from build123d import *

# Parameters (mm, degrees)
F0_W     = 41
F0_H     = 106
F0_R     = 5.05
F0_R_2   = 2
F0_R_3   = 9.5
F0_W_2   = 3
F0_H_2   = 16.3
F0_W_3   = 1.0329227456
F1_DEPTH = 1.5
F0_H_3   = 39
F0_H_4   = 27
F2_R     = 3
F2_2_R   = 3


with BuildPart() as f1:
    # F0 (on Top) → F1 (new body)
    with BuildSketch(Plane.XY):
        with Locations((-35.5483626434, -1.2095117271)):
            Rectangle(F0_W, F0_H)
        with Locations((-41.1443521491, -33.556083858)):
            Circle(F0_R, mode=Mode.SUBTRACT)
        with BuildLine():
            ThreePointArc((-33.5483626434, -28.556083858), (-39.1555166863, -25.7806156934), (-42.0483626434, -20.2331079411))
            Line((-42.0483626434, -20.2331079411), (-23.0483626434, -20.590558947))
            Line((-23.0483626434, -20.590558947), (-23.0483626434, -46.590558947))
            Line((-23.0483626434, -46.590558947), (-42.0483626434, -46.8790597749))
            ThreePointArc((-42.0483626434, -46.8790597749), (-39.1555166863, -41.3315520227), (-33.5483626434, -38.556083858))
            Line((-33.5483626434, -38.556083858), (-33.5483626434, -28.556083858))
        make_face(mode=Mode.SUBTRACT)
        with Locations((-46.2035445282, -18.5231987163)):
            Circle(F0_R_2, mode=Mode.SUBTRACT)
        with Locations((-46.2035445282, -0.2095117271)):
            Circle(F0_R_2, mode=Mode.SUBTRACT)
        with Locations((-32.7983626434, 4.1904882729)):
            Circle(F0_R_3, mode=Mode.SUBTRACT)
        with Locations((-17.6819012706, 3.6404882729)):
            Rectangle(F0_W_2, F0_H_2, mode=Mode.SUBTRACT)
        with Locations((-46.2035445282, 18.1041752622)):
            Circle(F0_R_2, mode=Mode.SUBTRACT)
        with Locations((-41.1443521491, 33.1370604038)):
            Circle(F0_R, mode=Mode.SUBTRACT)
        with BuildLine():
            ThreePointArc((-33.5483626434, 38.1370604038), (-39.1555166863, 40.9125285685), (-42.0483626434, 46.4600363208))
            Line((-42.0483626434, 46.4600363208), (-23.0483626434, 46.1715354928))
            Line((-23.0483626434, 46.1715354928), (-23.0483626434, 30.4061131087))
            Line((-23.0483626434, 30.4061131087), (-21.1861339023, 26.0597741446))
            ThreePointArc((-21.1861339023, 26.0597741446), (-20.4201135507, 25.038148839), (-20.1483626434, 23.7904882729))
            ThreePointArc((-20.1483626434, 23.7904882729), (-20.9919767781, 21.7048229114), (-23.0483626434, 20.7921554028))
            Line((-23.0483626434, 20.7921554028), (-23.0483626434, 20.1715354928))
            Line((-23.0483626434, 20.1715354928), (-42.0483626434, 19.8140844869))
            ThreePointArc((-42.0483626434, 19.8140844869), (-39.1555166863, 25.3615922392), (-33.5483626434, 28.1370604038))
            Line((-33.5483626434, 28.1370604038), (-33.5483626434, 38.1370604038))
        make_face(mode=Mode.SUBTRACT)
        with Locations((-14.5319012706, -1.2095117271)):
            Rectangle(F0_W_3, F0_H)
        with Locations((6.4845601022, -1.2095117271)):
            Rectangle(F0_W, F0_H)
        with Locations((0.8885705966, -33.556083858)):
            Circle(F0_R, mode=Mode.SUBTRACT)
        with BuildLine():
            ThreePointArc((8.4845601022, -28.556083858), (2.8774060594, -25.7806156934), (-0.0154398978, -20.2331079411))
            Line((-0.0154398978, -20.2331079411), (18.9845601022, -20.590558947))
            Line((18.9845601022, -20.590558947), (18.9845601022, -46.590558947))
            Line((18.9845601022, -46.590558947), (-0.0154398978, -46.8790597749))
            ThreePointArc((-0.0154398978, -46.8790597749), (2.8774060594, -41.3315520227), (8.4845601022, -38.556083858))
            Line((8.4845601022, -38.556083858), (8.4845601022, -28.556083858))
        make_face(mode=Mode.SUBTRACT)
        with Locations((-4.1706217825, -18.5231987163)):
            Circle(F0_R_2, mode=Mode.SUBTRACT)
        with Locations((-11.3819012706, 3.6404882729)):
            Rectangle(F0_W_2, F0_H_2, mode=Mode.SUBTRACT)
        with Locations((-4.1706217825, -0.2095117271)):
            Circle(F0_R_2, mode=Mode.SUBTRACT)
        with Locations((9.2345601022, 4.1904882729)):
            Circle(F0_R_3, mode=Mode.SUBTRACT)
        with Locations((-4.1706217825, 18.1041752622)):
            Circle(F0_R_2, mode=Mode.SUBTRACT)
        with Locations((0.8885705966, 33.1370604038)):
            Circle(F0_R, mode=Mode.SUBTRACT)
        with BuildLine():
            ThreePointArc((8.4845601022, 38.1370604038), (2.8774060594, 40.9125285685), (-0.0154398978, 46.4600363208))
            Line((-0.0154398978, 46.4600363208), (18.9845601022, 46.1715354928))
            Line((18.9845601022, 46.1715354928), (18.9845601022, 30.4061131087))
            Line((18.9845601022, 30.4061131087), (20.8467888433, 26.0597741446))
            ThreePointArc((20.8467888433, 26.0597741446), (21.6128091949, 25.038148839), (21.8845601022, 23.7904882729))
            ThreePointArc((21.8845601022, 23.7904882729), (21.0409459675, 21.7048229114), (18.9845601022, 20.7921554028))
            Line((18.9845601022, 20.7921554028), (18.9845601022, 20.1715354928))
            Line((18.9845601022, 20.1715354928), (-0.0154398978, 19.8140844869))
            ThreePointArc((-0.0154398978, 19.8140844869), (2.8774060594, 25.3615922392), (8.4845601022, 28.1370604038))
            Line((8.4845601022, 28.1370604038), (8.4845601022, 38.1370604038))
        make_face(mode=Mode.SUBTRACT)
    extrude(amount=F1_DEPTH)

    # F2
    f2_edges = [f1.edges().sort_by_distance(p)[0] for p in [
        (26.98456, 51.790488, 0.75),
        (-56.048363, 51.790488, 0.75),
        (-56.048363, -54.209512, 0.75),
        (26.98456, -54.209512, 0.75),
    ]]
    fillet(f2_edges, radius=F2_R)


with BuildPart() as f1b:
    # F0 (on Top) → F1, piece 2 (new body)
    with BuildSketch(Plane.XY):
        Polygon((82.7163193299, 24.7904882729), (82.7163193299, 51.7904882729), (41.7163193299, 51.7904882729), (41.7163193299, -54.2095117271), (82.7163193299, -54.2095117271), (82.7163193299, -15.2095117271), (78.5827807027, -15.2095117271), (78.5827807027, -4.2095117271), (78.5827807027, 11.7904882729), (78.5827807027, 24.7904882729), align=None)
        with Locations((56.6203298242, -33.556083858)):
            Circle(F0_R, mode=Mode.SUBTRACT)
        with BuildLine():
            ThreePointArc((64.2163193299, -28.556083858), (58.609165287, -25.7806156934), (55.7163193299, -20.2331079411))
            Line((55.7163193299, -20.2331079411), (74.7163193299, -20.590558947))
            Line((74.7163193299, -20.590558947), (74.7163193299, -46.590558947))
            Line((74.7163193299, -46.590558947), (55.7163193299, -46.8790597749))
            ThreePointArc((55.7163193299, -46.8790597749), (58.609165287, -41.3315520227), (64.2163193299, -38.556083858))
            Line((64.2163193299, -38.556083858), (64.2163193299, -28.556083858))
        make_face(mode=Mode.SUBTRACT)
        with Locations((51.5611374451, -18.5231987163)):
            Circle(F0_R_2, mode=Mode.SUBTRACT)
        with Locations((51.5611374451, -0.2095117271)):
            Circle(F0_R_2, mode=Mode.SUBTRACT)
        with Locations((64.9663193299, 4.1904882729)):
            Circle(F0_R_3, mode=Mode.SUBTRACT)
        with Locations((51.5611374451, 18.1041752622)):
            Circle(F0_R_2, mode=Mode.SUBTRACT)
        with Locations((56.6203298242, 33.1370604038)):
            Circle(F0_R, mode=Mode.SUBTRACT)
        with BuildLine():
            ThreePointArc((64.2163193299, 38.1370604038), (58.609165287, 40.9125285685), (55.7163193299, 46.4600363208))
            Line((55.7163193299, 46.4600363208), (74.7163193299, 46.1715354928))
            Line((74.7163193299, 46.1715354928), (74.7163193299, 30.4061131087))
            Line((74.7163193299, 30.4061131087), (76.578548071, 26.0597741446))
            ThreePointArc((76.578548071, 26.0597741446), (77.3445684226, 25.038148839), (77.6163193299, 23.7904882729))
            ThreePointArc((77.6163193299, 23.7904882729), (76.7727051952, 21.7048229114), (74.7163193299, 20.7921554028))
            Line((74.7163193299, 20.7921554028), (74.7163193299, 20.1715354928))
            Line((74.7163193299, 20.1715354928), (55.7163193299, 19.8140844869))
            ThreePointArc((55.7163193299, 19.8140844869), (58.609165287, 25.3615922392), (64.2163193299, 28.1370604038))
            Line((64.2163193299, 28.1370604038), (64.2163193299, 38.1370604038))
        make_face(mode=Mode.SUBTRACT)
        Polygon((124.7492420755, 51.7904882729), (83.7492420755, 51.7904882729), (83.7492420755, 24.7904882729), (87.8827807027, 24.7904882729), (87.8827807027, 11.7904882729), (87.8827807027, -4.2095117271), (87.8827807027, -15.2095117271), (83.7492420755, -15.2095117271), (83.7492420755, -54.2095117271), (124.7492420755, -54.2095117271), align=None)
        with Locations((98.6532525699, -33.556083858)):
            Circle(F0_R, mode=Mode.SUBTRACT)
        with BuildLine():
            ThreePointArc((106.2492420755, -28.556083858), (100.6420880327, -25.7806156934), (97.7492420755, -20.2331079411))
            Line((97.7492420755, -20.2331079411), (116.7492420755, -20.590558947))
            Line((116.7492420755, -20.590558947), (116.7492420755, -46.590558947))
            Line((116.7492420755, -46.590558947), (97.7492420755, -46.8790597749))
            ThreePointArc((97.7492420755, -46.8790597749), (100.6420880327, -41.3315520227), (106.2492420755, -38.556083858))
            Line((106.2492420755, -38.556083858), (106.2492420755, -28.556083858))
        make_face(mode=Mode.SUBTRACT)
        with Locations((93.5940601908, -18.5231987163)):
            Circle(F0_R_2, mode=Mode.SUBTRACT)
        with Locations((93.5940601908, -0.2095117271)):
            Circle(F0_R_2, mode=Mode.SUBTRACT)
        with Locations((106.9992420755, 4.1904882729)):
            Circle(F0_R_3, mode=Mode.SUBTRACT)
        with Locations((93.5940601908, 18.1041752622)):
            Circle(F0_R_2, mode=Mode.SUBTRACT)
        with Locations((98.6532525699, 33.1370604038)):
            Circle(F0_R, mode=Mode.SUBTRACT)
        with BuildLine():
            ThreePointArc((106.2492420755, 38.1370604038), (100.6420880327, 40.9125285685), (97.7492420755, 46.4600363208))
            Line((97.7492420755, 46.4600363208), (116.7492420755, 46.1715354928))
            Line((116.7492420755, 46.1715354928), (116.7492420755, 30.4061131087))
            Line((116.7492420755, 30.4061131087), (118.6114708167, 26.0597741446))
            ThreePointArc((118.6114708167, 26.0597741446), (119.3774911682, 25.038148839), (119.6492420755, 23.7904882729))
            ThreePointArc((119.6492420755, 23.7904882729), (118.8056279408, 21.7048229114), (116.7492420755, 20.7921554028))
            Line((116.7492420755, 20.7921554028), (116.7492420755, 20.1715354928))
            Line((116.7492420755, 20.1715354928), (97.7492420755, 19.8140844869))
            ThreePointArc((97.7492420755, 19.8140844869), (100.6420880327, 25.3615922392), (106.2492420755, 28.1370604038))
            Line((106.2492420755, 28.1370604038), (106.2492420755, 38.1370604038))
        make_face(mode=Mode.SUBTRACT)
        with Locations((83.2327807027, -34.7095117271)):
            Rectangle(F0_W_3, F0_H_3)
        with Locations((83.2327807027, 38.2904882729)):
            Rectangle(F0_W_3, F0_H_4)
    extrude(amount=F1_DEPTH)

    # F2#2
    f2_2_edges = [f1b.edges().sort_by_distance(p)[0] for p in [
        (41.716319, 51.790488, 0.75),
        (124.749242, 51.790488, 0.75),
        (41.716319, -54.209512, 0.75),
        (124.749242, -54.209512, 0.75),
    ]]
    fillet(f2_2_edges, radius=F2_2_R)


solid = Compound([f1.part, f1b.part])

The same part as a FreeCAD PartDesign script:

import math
import FreeCAD as App
import Part
import Sketcher

V = App.Vector
Q = App.Units.Quantity


def edges_at(feature, points):
    """Names of the edges that pass closest to the given points."""
    edges = feature.Shape.Edges
    near = lambda p: min(range(len(edges)), key=lambda i: edges[i].distToShape(Part.Vertex(*p))[0])
    return sorted({f"Edge{near(p) + 1}" for p in points})

doc = App.newDocument("Part")
params = doc.addObject("Spreadsheet::Sheet", "Params")
for row, (alias, value) in enumerate([
    ("sketch1_diameter", "4 mm"),
    ("sketch1_diameter2", "19 mm"),
    ("sketch1_radius", "3 mm"),
    ("sketch1_diameter3", "10.1 mm"),
    ("sketch1_width", "3 mm"),
    ("pad1_length", "1.5 mm"),
    ("fillet_radius", "3 mm"),
    ("sketch2_diameter", "4 mm"),
    ("sketch2_diameter2", "19 mm"),
    ("sketch2_radius", "3 mm"),
    ("sketch2_diameter3", "10.1 mm"),
    ("sketch2_height", "106 mm"),
    ("pad2_length", "1.5 mm"),
    ("fillet2_radius", "3 mm"),
], start=1):
    params.set(f"A{row}", alias)
    params.set(f"B{row}", "=" + value)
    params.setAlias(f"B{row}", alias)

body = doc.addObject("PartDesign::Body", "Body")

sketch1 = body.newObject("Sketcher::SketchObject", "Sketch")
sketch1.AttachmentSupport = (doc.getObject("XY_Plane"), [""])
sketch1.MapMode = "FlatFace"
sketch1.addGeometry(Part.LineSegment(V(-56, 51.8, 0), V(-56, -54.2, 0)), False)
sketch1.addGeometry(Part.LineSegment(V(-56, -54.2, 0), V(27, -54.2, 0)), False)
sketch1.addGeometry(Part.LineSegment(V(27, -54.2, 0), V(27, 51.8, 0)), False)
sketch1.addGeometry(Part.LineSegment(V(27, 51.8, 0), V(-56, 51.8, 0)), False)
sketch1.addGeometry(Part.Circle(V(-41.1, -33.6, 0), V(0, 0, 1), 5), False)
sketch1.addGeometry(Part.LineSegment(V(-33.5, -38.6, 0), V(-33.5, -28.6, 0)), False)
sketch1.addGeometry(Part.ArcOfCircle(Part.Circle(V(-32.1, -18.6, 0), V(0, 0, 1), 10.1), math.radians(-171), math.radians(-98)), False)
sketch1.addGeometry(Part.LineSegment(V(-42, -20.2, 0), V(-23, -20.6, 0)), False)
sketch1.addGeometry(Part.LineSegment(V(-23, -20.6, 0), V(-23, -46.6, 0)), False)
sketch1.addGeometry(Part.LineSegment(V(-23, -46.6, 0), V(-42, -46.9, 0)), False)
sketch1.addGeometry(Part.ArcOfCircle(Part.Circle(V(-32.1, -48.5, 0), V(0, 0, 1), 10.1), math.radians(98), math.radians(171)), False)
sketch1.addGeometry(Part.Circle(V(-46.2, -18.5, 0), V(0, 0, 1), 2), False)
sketch1.addGeometry(Part.Circle(V(-46.2, -0.2, 0), V(0, 0, 1), 2), False)
sketch1.addGeometry(Part.Circle(V(0.9, -33.6, 0), V(0, 0, 1), 5), False)
sketch1.addGeometry(Part.LineSegment(V(8.5, -38.6, 0), V(8.5, -28.6, 0)), False)
sketch1.addGeometry(Part.ArcOfCircle(Part.Circle(V(9.9, -18.6, 0), V(0, 0, 1), 10.1), math.radians(-171), math.radians(-98)), False)
sketch1.addGeometry(Part.LineSegment(V(0, -20.2, 0), V(19, -20.6, 0)), False)
sketch1.addGeometry(Part.LineSegment(V(19, -20.6, 0), V(19, -46.6, 0)), False)
sketch1.addGeometry(Part.LineSegment(V(19, -46.6, 0), V(0, -46.9, 0)), False)
sketch1.addGeometry(Part.ArcOfCircle(Part.Circle(V(9.9, -48.5, 0), V(0, 0, 1), 10.1), math.radians(98), math.radians(171)), False)
sketch1.addGeometry(Part.Circle(V(-4.2, -18.5, 0), V(0, 0, 1), 2), False)
sketch1.addGeometry(Part.Circle(V(-4.2, -0.2, 0), V(0, 0, 1), 2), False)
sketch1.addGeometry(Part.Circle(V(-32.8, 4.2, 0), V(0, 0, 1), 9.5), False)
sketch1.addGeometry(Part.Circle(V(-46.2, 18.1, 0), V(0, 0, 1), 2), False)
sketch1.addGeometry(Part.LineSegment(V(-16.2, -4.5, 0), V(-19.2, -4.5, 0)), False)
sketch1.addGeometry(Part.LineSegment(V(-19.2, -4.5, 0), V(-19.2, 11.8, 0)), False)
sketch1.addGeometry(Part.LineSegment(V(-19.2, 11.8, 0), V(-16.2, 11.8, 0)), False)
sketch1.addGeometry(Part.LineSegment(V(-16.2, 11.8, 0), V(-16.2, -4.5, 0)), False)
sketch1.addGeometry(Part.Circle(V(-41.1, 33.1, 0), V(0, 0, 1), 5), False)
sketch1.addGeometry(Part.LineSegment(V(-33.5, 28.1, 0), V(-33.5, 38.1, 0)), False)
sketch1.addGeometry(Part.ArcOfCircle(Part.Circle(V(-32.1, 48.1, 0), V(0, 0, 1), 10.1), math.radians(-171), math.radians(-98)), False)
sketch1.addGeometry(Part.LineSegment(V(-42, 46.5, 0), V(-23, 46.2, 0)), False)
sketch1.addGeometry(Part.LineSegment(V(-23, 46.2, 0), V(-23, 30.4, 0)), False)
sketch1.addGeometry(Part.LineSegment(V(-23, 30.4, 0), V(-21.2, 26.1, 0)), False)
sketch1.addGeometry(Part.ArcOfCircle(Part.Circle(V(-23.1, 23.8, 0), V(0, 0, 1), 3), math.radians(0), math.radians(49)), False)
sketch1.addGeometry(Part.ArcOfCircle(Part.Circle(V(-23.1, 23.8, 0), V(0, 0, 1), 3), math.radians(-88), math.radians(0)), False)
sketch1.addGeometry(Part.LineSegment(V(-23, 20.8, 0), V(-23, 20.2, 0)), False)
sketch1.addGeometry(Part.LineSegment(V(-23, 20.2, 0), V(-42, 19.8, 0)), False)
sketch1.addGeometry(Part.ArcOfCircle(Part.Circle(V(-32.1, 18.2, 0), V(0, 0, 1), 10.1), math.radians(98), math.radians(171)), False)
sketch1.addGeometry(Part.LineSegment(V(-9.9, -4.5, 0), V(-12.9, -4.5, 0)), False)
sketch1.addGeometry(Part.LineSegment(V(-12.9, -4.5, 0), V(-12.9, 11.8, 0)), False)
sketch1.addGeometry(Part.LineSegment(V(-12.9, 11.8, 0), V(-9.9, 11.8, 0)), False)
sketch1.addGeometry(Part.LineSegment(V(-9.9, 11.8, 0), V(-9.9, -4.5, 0)), False)
sketch1.addGeometry(Part.Circle(V(-4.2, 18.1, 0), V(0, 0, 1), 2), False)
sketch1.addGeometry(Part.Circle(V(9.2, 4.2, 0), V(0, 0, 1), 9.5), False)
sketch1.addGeometry(Part.Circle(V(0.9, 33.1, 0), V(0, 0, 1), 5), False)
sketch1.addGeometry(Part.LineSegment(V(8.5, 28.1, 0), V(8.5, 38.1, 0)), False)
sketch1.addGeometry(Part.ArcOfCircle(Part.Circle(V(9.9, 48.1, 0), V(0, 0, 1), 10.1), math.radians(-171), math.radians(-98)), False)
sketch1.addGeometry(Part.LineSegment(V(0, 46.5, 0), V(19, 46.2, 0)), False)
sketch1.addGeometry(Part.LineSegment(V(19, 46.2, 0), V(19, 30.4, 0)), False)
sketch1.addGeometry(Part.LineSegment(V(19, 30.4, 0), V(20.8, 26.1, 0)), False)
sketch1.addGeometry(Part.ArcOfCircle(Part.Circle(V(18.9, 23.8, 0), V(0, 0, 1), 3), math.radians(0), math.radians(49)), False)
sketch1.addGeometry(Part.ArcOfCircle(Part.Circle(V(18.9, 23.8, 0), V(0, 0, 1), 3), math.radians(-88), math.radians(0)), False)
sketch1.addGeometry(Part.LineSegment(V(19, 20.8, 0), V(19, 20.2, 0)), False)
sketch1.addGeometry(Part.LineSegment(V(19, 20.2, 0), V(0, 19.8, 0)), False)
sketch1.addGeometry(Part.ArcOfCircle(Part.Circle(V(9.9, 18.2, 0), V(0, 0, 1), 10.1), math.radians(98), math.radians(171)), False)
sketch1.addConstraint(Sketcher.Constraint("Coincident", 0, 2, 1, 1))
sketch1.addConstraint(Sketcher.Constraint("Coincident", 1, 2, 2, 1))
sketch1.addConstraint(Sketcher.Constraint("Coincident", 2, 2, 3, 1))
sketch1.addConstraint(Sketcher.Constraint("Coincident", 3, 2, 0, 1))
sketch1.addConstraint(Sketcher.Constraint("Coincident", 5, 2, 6, 2))
sketch1.addConstraint(Sketcher.Constraint("Coincident", 6, 1, 7, 1))
sketch1.addConstraint(Sketcher.Constraint("Coincident", 7, 2, 8, 1))
sketch1.addConstraint(Sketcher.Constraint("Coincident", 8, 2, 9, 1))
sketch1.addConstraint(Sketcher.Constraint("Coincident", 9, 2, 10, 2))
sketch1.addConstraint(Sketcher.Constraint("Coincident", 10, 1, 5, 1))
sketch1.addConstraint(Sketcher.Constraint("Coincident", 14, 2, 15, 2))
sketch1.addConstraint(Sketcher.Constraint("Coincident", 15, 1, 16, 1))
sketch1.addConstraint(Sketcher.Constraint("Coincident", 16, 2, 17, 1))
sketch1.addConstraint(Sketcher.Constraint("Coincident", 17, 2, 18, 1))
sketch1.addConstraint(Sketcher.Constraint("Coincident", 18, 2, 19, 2))
sketch1.addConstraint(Sketcher.Constraint("Coincident", 19, 1, 14, 1))
sketch1.addConstraint(Sketcher.Constraint("Coincident", 24, 2, 25, 1))
sketch1.addConstraint(Sketcher.Constraint("Coincident", 25, 2, 26, 1))
sketch1.addConstraint(Sketcher.Constraint("Coincident", 26, 2, 27, 1))
sketch1.addConstraint(Sketcher.Constraint("Coincident", 27, 2, 24, 1))
sketch1.addConstraint(Sketcher.Constraint("Coincident", 29, 2, 30, 2))
sketch1.addConstraint(Sketcher.Constraint("Coincident", 30, 1, 31, 1))
sketch1.addConstraint(Sketcher.Constraint("Coincident", 31, 2, 32, 1))
sketch1.addConstraint(Sketcher.Constraint("Coincident", 32, 2, 33, 1))
sketch1.addConstraint(Sketcher.Constraint("Coincident", 33, 2, 34, 2))
sketch1.addConstraint(Sketcher.Constraint("Tangent", 34, 1, 35, 2))
sketch1.addConstraint(Sketcher.Constraint("Coincident", 35, 1, 36, 1))
sketch1.addConstraint(Sketcher.Constraint("Coincident", 36, 2, 37, 1))
sketch1.addConstraint(Sketcher.Constraint("Coincident", 37, 2, 38, 2))
sketch1.addConstraint(Sketcher.Constraint("Coincident", 38, 1, 29, 1))
sketch1.addConstraint(Sketcher.Constraint("Coincident", 39, 2, 40, 1))
sketch1.addConstraint(Sketcher.Constraint("Coincident", 40, 2, 41, 1))
sketch1.addConstraint(Sketcher.Constraint("Coincident", 41, 2, 42, 1))
sketch1.addConstraint(Sketcher.Constraint("Coincident", 42, 2, 39, 1))
sketch1.addConstraint(Sketcher.Constraint("Coincident", 46, 2, 47, 2))
sketch1.addConstraint(Sketcher.Constraint("Coincident", 47, 1, 48, 1))
sketch1.addConstraint(Sketcher.Constraint("Coincident", 48, 2, 49, 1))
sketch1.addConstraint(Sketcher.Constraint("Coincident", 49, 2, 50, 1))
sketch1.addConstraint(Sketcher.Constraint("Coincident", 50, 2, 51, 2))
sketch1.addConstraint(Sketcher.Constraint("Tangent", 51, 1, 52, 2))
sketch1.addConstraint(Sketcher.Constraint("Coincident", 52, 1, 53, 1))
sketch1.addConstraint(Sketcher.Constraint("Coincident", 53, 2, 54, 1))
sketch1.addConstraint(Sketcher.Constraint("Coincident", 54, 2, 55, 2))
sketch1.addConstraint(Sketcher.Constraint("Coincident", 55, 1, 46, 1))
sketch1.addConstraint(Sketcher.Constraint("Vertical", 0))
sketch1.addConstraint(Sketcher.Constraint("Horizontal", 1))
sketch1.addConstraint(Sketcher.Constraint("Vertical", 2))
sketch1.addConstraint(Sketcher.Constraint("Horizontal", 3))
sketch1.addConstraint(Sketcher.Constraint("Vertical", 5))
sketch1.addConstraint(Sketcher.Constraint("Vertical", 8))
sketch1.addConstraint(Sketcher.Constraint("Vertical", 14))
sketch1.addConstraint(Sketcher.Constraint("Vertical", 17))
sketch1.addConstraint(Sketcher.Constraint("Horizontal", 24))
sketch1.addConstraint(Sketcher.Constraint("Vertical", 25))
sketch1.addConstraint(Sketcher.Constraint("Horizontal", 26))
sketch1.addConstraint(Sketcher.Constraint("Vertical", 27))
sketch1.addConstraint(Sketcher.Constraint("Vertical", 29))
sketch1.addConstraint(Sketcher.Constraint("Vertical", 32))
sketch1.addConstraint(Sketcher.Constraint("Vertical", 36))
sketch1.addConstraint(Sketcher.Constraint("Horizontal", 39))
sketch1.addConstraint(Sketcher.Constraint("Vertical", 40))
sketch1.addConstraint(Sketcher.Constraint("Horizontal", 41))
sketch1.addConstraint(Sketcher.Constraint("Vertical", 42))
sketch1.addConstraint(Sketcher.Constraint("Vertical", 46))
sketch1.addConstraint(Sketcher.Constraint("Vertical", 49))
sketch1.addConstraint(Sketcher.Constraint("Vertical", 53))
sketch1.addConstraint(Sketcher.Constraint("Equal", 6, 10))
sketch1.addConstraint(Sketcher.Constraint("Equal", 11, 12))
sketch1.addConstraint(Sketcher.Constraint("Equal", 4, 13))
sketch1.addConstraint(Sketcher.Constraint("Equal", 10, 15))
sketch1.addConstraint(Sketcher.Constraint("Equal", 15, 19))
sketch1.addConstraint(Sketcher.Constraint("Equal", 12, 20))
sketch1.addConstraint(Sketcher.Constraint("Equal", 20, 21))
sketch1.addConstraint(Sketcher.Constraint("Equal", 21, 23))
sketch1.addConstraint(Sketcher.Constraint("Equal", 13, 28))
sketch1.addConstraint(Sketcher.Constraint("Equal", 19, 30))
sketch1.addConstraint(Sketcher.Constraint("Equal", 34, 35))
sketch1.addConstraint(Sketcher.Constraint("Equal", 30, 38))
sketch1.addConstraint(Sketcher.Constraint("Equal", 23, 43))
sketch1.addConstraint(Sketcher.Constraint("Equal", 22, 44))
sketch1.addConstraint(Sketcher.Constraint("Equal", 28, 45))
sketch1.addConstraint(Sketcher.Constraint("Equal", 38, 47))
sketch1.addConstraint(Sketcher.Constraint("Equal", 35, 51))
sketch1.addConstraint(Sketcher.Constraint("Equal", 51, 52))
sketch1.addConstraint(Sketcher.Constraint("Equal", 47, 55))
sketch1.addConstraint(Sketcher.Constraint("Parallel", 7, 16))
sketch1.addConstraint(Sketcher.Constraint("Parallel", 9, 18))
sketch1.addConstraint(Sketcher.Constraint("Parallel", 31, 48))
sketch1.addConstraint(Sketcher.Constraint("Parallel", 33, 50))
sketch1.addConstraint(Sketcher.Constraint("Parallel", 37, 54))
sketch1.addConstraint(Sketcher.Constraint("Horizontal", 4, 3, 13, 3))
sketch1.addConstraint(Sketcher.Constraint("Horizontal", 6, 3, 15, 3))
sketch1.addConstraint(Sketcher.Constraint("Horizontal", 10, 3, 19, 3))
sketch1.addConstraint(Sketcher.Constraint("Horizontal", 11, 3, 20, 3))
sketch1.addConstraint(Sketcher.Constraint("Horizontal", 12, 3, 21, 3))
sketch1.addConstraint(Sketcher.Constraint("Horizontal", 23, 3, 43, 3))
sketch1.addConstraint(Sketcher.Constraint("Horizontal", 22, 3, 44, 3))
sketch1.addConstraint(Sketcher.Constraint("Horizontal", 28, 3, 45, 3))
sketch1.addConstraint(Sketcher.Constraint("Horizontal", 30, 3, 47, 3))
sketch1.addConstraint(Sketcher.Constraint("Horizontal", 35, 3, 51, 3))
sketch1.addConstraint(Sketcher.Constraint("Horizontal", 38, 3, 55, 3))
sketch1.addConstraint(Sketcher.Constraint("Horizontal", 5, 2, 14, 2))
sketch1.addConstraint(Sketcher.Constraint("Horizontal", 6, 1, 15, 1))
sketch1.addConstraint(Sketcher.Constraint("Horizontal", 7, 2, 16, 2))
sketch1.addConstraint(Sketcher.Constraint("Horizontal", 8, 2, 17, 2))
sketch1.addConstraint(Sketcher.Constraint("Horizontal", 9, 2, 18, 2))
sketch1.addConstraint(Sketcher.Constraint("Horizontal", 52, 3, 34, 1))
sketch1.addConstraint(Sketcher.Constraint("Horizontal", 27, 2, 39, 2))
sketch1.addConstraint(Sketcher.Constraint("Horizontal", 26, 2, 40, 2))
sketch1.addConstraint(Sketcher.Constraint("Horizontal", 29, 2, 46, 2))
sketch1.addConstraint(Sketcher.Constraint("Horizontal", 30, 1, 47, 1))
sketch1.addConstraint(Sketcher.Constraint("Horizontal", 31, 2, 48, 2))
sketch1.addConstraint(Sketcher.Constraint("Horizontal", 32, 2, 49, 2))
sketch1.addConstraint(Sketcher.Constraint("Horizontal", 33, 2, 50, 2))
sketch1.addConstraint(Sketcher.Constraint("Horizontal", 34, 1, 51, 1))
sketch1.addConstraint(Sketcher.Constraint("Horizontal", 35, 1, 52, 1))
sketch1.addConstraint(Sketcher.Constraint("Horizontal", 36, 2, 53, 2))
sketch1.addConstraint(Sketcher.Constraint("Horizontal", 37, 2, 54, 2))
sketch1.addConstraint(Sketcher.Constraint("Vertical", 6, 3, 10, 3))
sketch1.addConstraint(Sketcher.Constraint("Vertical", 11, 3, 12, 3))
sketch1.addConstraint(Sketcher.Constraint("Vertical", 20, 3, 21, 3))
sketch1.addConstraint(Sketcher.Constraint("Vertical", 12, 3, 23, 3))
sketch1.addConstraint(Sketcher.Constraint("Vertical", 4, 3, 28, 3))
sketch1.addConstraint(Sketcher.Constraint("Vertical", 10, 3, 30, 3))
sketch1.addConstraint(Sketcher.Constraint("Vertical", 30, 3, 38, 3))
sketch1.addConstraint(Sketcher.Constraint("Vertical", 21, 3, 43, 3))
sketch1.addConstraint(Sketcher.Constraint("Vertical", 13, 3, 45, 3))
sketch1.addConstraint(Sketcher.Constraint("Vertical", 19, 3, 47, 3))
sketch1.addConstraint(Sketcher.Constraint("Vertical", 6, 1, 9, 2))
sketch1.addConstraint(Sketcher.Constraint("Vertical", 10, 1, 29, 2))
sketch1.addConstraint(Sketcher.Constraint("Vertical", 9, 2, 30, 1))
sketch1.addConstraint(Sketcher.Constraint("Vertical", 8, 2, 31, 2))
sketch1.addConstraint(Sketcher.Constraint("Vertical", 32, 2, 35, 1))
sketch1.addConstraint(Sketcher.Constraint("Vertical", 30, 1, 37, 2))
sketch1.addConstraint(Sketcher.Constraint("Equal", 26, 39))
sketch1.addConstraint(Sketcher.Constraint("Equal", 14, 29))
sketch1.addConstraint(Sketcher.Constraint("Equal", 18, 31))
sketch1.addConstraint(Sketcher.Constraint("Equal", 16, 37))
sketch1.addConstraint(Sketcher.Constraint("Diameter", 11, Q("4 mm")))
sketch1.addConstraint(Sketcher.Constraint("Diameter", 22, Q("19 mm")))
sketch1.addConstraint(Sketcher.Constraint("Radius", 34, Q("3 mm")))
sketch1.addConstraint(Sketcher.Constraint("Diameter", 4, Q("10.1 mm")))
sketch1.addConstraint(Sketcher.Constraint("DistanceX", 24, 2, 24, 1, Q("3 mm")))
sketch1.addConstraint(Sketcher.Constraint("DistanceY", 0, 2, 0, 1, Q("106 mm")))
sketch1.addConstraint(Sketcher.Constraint("DistanceY", 5, 1, 5, 2, Q("10 mm")))
sketch1.addConstraint(Sketcher.Constraint("DistanceY", 8, 2, 8, 1, Q("26 mm")))
sketch1.addConstraint(Sketcher.Constraint("DistanceY", 25, 1, 25, 2, Q("16.3 mm")))
sketch1.addConstraint(Sketcher.Constraint("Radius", 6, Q("10.089419 mm")))
sketch1.addConstraint(Sketcher.Constraint("DistanceY", 36, 2, 36, 1, Q("0.62062 mm")))
sketch1.addConstraint(Sketcher.Constraint("DistanceY", 11, 3, -1, 1, Q("18.523199 mm")))
sketch1.addConstraint(Sketcher.Constraint("DistanceY", -1, 1, 30, 3, Q("48.121499 mm")))
sketch1.addConstraint(Sketcher.Constraint("DistanceX", 24, 2, -1, 1, Q("19.181901 mm")))
sketch1.addConstraint(Sketcher.Constraint("DistanceX", 39, 2, -1, 1, Q("12.881901 mm")))
sketch1.addConstraint(Sketcher.Constraint("Distance", 9, Q("19.00219 mm")))
sketch1.addConstraint(Sketcher.Constraint("DistanceX", 1, 1, 1, 2, Q("83.032923 mm")))
sketch1.addConstraint(Sketcher.Constraint("DistanceY", 32, 2, 32, 1, Q("15.765422 mm")))
sketch1.addConstraint(Sketcher.Constraint("DistanceY", 12, 3, -1, 1, Q("0.209512 mm")))
sketch1.addConstraint(Sketcher.Constraint("DistanceX", -1, 1, 13, 3, Q("0.888571 mm")))
sketch1.addConstraint(Sketcher.Constraint("DistanceX", -1, 1, 15, 3, Q("9.93624 mm")))
sketch1.addConstraint(Sketcher.Constraint("DistanceX", 20, 3, -1, 1, Q("4.170622 mm")))
sketch1.addConstraint(Sketcher.Constraint("DistanceY", -1, 1, 22, 3, Q("4.190488 mm")))
sketch1.addConstraint(Sketcher.Constraint("DistanceY", -1, 1, 28, 3, Q("33.13706 mm")))
sketch1.addConstraint(Sketcher.Constraint("DistanceY", -1, 1, 34, 3, Q("23.790488 mm")))
sketch1.addConstraint(Sketcher.Constraint("DistanceX", -1, 1, 44, 3, Q("9.23456 mm")))
sketch1.addConstraint(Sketcher.Constraint("DistanceX", -1, 1, 51, 3, Q("18.88456 mm")))
sketch1.addConstraint(Sketcher.Constraint("DistanceY", 0, 2, -1, 1, Q("54.209512 mm")))
sketch1.addConstraint(Sketcher.Constraint("DistanceX", -1, 1, 1, 2, Q("26.98456 mm")))
sketch1.addConstraint(Sketcher.Constraint("DistanceY", 7, 2, -1, 1, Q("20.590559 mm")))
sketch1.addConstraint(Sketcher.Constraint("DistanceY", 9, 2, -1, 1, Q("46.87906 mm")))
sketch1.addConstraint(Sketcher.Constraint("DistanceX", -1, 1, 14, 2, Q("8.48456 mm")))
sketch1.addConstraint(Sketcher.Constraint("DistanceY", 24, 2, -1, 1, Q("4.509512 mm")))
sketch1.addConstraint(Sketcher.Constraint("DistanceX", -1, 1, 50, 2, Q("20.846789 mm")))
sketch1.addConstraint(Sketcher.Constraint("DistanceX", 4, 3, -1, 1, Q("41.144352 mm")))
sketch1.addConstraint(Sketcher.Constraint("DistanceY", 4, 3, -1, 1, Q("33.556084 mm")))
sketch1.addConstraint(Sketcher.Constraint("DistanceX", 6, 3, -1, 1, Q("32.096683 mm")))
sketch1.addConstraint(Sketcher.Constraint("DistanceX", 11, 3, -1, 1, Q("46.203545 mm")))
sketch1.addConstraint(Sketcher.Constraint("DistanceX", 22, 3, -1, 1, Q("32.798363 mm")))
sketch1.addConstraint(Sketcher.Constraint("DistanceY", -1, 1, 23, 3, Q("18.104175 mm")))
sketch1.setExpression("Constraints[138]", "Params.sketch1_diameter")
sketch1.setExpression("Constraints[139]", "Params.sketch1_diameter2")
sketch1.setExpression("Constraints[140]", "Params.sketch1_radius")
sketch1.setExpression("Constraints[141]", "Params.sketch1_diameter3")
sketch1.setExpression("Constraints[142]", "Params.sketch1_width")
pad1 = body.newObject("PartDesign::Pad", "Pad")
pad1.Profile = sketch1
pad1.setExpression("Length", "Params.pad1_length")
doc.recompute()

fillet = body.newObject("PartDesign::Fillet", "Fillet")
fillet.Base = (pad1, edges_at(pad1, [
    (26.985, 51.79, 0.75),
    (-56.048, 51.79, 0.75),
    (-56.048, -54.21, 0.75),
    (26.985, -54.21, 0.75),
]))
fillet.setExpression("Radius", "Params.fillet_radius")
body2 = doc.addObject("PartDesign::Body", "Body001")

sketch2 = body2.newObject("Sketcher::SketchObject", "Sketch001")
sketch2.AttachmentSupport = (doc.getObject("XY_Plane001"), [""])
sketch2.MapMode = "FlatFace"
sketch2.addGeometry(Part.LineSegment(V(41.7, 51.8, 0), V(41.7, -54.2, 0)), False)
sketch2.addGeometry(Part.LineSegment(V(41.7, -54.2, 0), V(124.7, -54.2, 0)), False)
sketch2.addGeometry(Part.LineSegment(V(124.7, -54.2, 0), V(124.7, 51.8, 0)), False)
sketch2.addGeometry(Part.LineSegment(V(124.7, 51.8, 0), V(41.7, 51.8, 0)), False)
sketch2.addGeometry(Part.LineSegment(V(87.9, 24.8, 0), V(87.9, -15.2, 0)), False)
sketch2.addGeometry(Part.LineSegment(V(87.9, -15.2, 0), V(78.6, -15.2, 0)), False)
sketch2.addGeometry(Part.LineSegment(V(78.6, -15.2, 0), V(78.6, 24.8, 0)), False)
sketch2.addGeometry(Part.LineSegment(V(78.6, 24.8, 0), V(87.9, 24.8, 0)), False)
sketch2.addGeometry(Part.Circle(V(56.6, -33.6, 0), V(0, 0, 1), 5), False)
sketch2.addGeometry(Part.Circle(V(51.6, -18.5, 0), V(0, 0, 1), 2), False)
sketch2.addGeometry(Part.Circle(V(51.6, -0.2, 0), V(0, 0, 1), 2), False)
sketch2.addGeometry(Part.LineSegment(V(64.2, -38.6, 0), V(64.2, -28.6, 0)), False)
sketch2.addGeometry(Part.ArcOfCircle(Part.Circle(V(65.7, -18.6, 0), V(0, 0, 1), 10.1), math.radians(-171), math.radians(-98)), False)
sketch2.addGeometry(Part.LineSegment(V(55.7, -20.2, 0), V(74.7, -20.6, 0)), False)
sketch2.addGeometry(Part.LineSegment(V(74.7, -20.6, 0), V(74.7, -46.6, 0)), False)
sketch2.addGeometry(Part.LineSegment(V(74.7, -46.6, 0), V(55.7, -46.9, 0)), False)
sketch2.addGeometry(Part.ArcOfCircle(Part.Circle(V(65.7, -48.5, 0), V(0, 0, 1), 10.1), math.radians(98), math.radians(171)), False)
sketch2.addGeometry(Part.Circle(V(51.6, 18.1, 0), V(0, 0, 1), 2), False)
sketch2.addGeometry(Part.Circle(V(56.6, 33.1, 0), V(0, 0, 1), 5), False)
sketch2.addGeometry(Part.Circle(V(65, 4.2, 0), V(0, 0, 1), 9.5), False)
sketch2.addGeometry(Part.LineSegment(V(64.2, 28.1, 0), V(64.2, 38.1, 0)), False)
sketch2.addGeometry(Part.ArcOfCircle(Part.Circle(V(65.7, 48.1, 0), V(0, 0, 1), 10.1), math.radians(-171), math.radians(-98)), False)
sketch2.addGeometry(Part.LineSegment(V(55.7, 46.5, 0), V(74.7, 46.2, 0)), False)
sketch2.addGeometry(Part.LineSegment(V(74.7, 46.2, 0), V(74.7, 30.4, 0)), False)
sketch2.addGeometry(Part.LineSegment(V(74.7, 30.4, 0), V(76.6, 26.1, 0)), False)
sketch2.addGeometry(Part.ArcOfCircle(Part.Circle(V(74.6, 23.8, 0), V(0, 0, 1), 3), math.radians(0), math.radians(49)), False)
sketch2.addGeometry(Part.ArcOfCircle(Part.Circle(V(74.6, 23.8, 0), V(0, 0, 1), 3), math.radians(-88), math.radians(0)), False)
sketch2.addGeometry(Part.LineSegment(V(74.7, 20.8, 0), V(74.7, 20.2, 0)), False)
sketch2.addGeometry(Part.LineSegment(V(74.7, 20.2, 0), V(55.7, 19.8, 0)), False)
sketch2.addGeometry(Part.ArcOfCircle(Part.Circle(V(65.7, 18.2, 0), V(0, 0, 1), 10.1), math.radians(98), math.radians(171)), False)
sketch2.addGeometry(Part.ArcOfCircle(Part.Circle(V(107.7, 48.1, 0), V(0, 0, 1), 10.1), math.radians(-171), math.radians(-98)), False)
sketch2.addGeometry(Part.LineSegment(V(97.7, 46.5, 0), V(116.7, 46.2, 0)), False)
sketch2.addGeometry(Part.LineSegment(V(116.7, 46.2, 0), V(116.7, 30.4, 0)), False)
sketch2.addGeometry(Part.LineSegment(V(116.7, 30.4, 0), V(118.6, 26.1, 0)), False)
sketch2.addGeometry(Part.ArcOfCircle(Part.Circle(V(116.6, 23.8, 0), V(0, 0, 1), 3), math.radians(0), math.radians(49)), False)
sketch2.addGeometry(Part.ArcOfCircle(Part.Circle(V(116.6, 23.8, 0), V(0, 0, 1), 3), math.radians(-88), math.radians(0)), False)
sketch2.addGeometry(Part.LineSegment(V(116.7, 20.8, 0), V(116.7, 20.2, 0)), False)
sketch2.addGeometry(Part.LineSegment(V(116.7, 20.2, 0), V(97.7, 19.8, 0)), False)
sketch2.addGeometry(Part.ArcOfCircle(Part.Circle(V(107.7, 18.2, 0), V(0, 0, 1), 10.1), math.radians(98), math.radians(171)), False)
sketch2.addGeometry(Part.LineSegment(V(106.2, 28.1, 0), V(106.2, 38.1, 0)), False)
sketch2.addGeometry(Part.Circle(V(98.7, -33.6, 0), V(0, 0, 1), 5), False)
sketch2.addGeometry(Part.Circle(V(93.6, -18.5, 0), V(0, 0, 1), 2), False)
sketch2.addGeometry(Part.Circle(V(93.6, -0.2, 0), V(0, 0, 1), 2), False)
sketch2.addGeometry(Part.LineSegment(V(106.2, -38.6, 0), V(106.2, -28.6, 0)), False)
sketch2.addGeometry(Part.ArcOfCircle(Part.Circle(V(107.7, -18.6, 0), V(0, 0, 1), 10.1), math.radians(-171), math.radians(-98)), False)
sketch2.addGeometry(Part.LineSegment(V(97.7, -20.2, 0), V(116.7, -20.6, 0)), False)
sketch2.addGeometry(Part.LineSegment(V(116.7, -20.6, 0), V(116.7, -46.6, 0)), False)
sketch2.addGeometry(Part.LineSegment(V(116.7, -46.6, 0), V(97.7, -46.9, 0)), False)
sketch2.addGeometry(Part.ArcOfCircle(Part.Circle(V(107.7, -48.5, 0), V(0, 0, 1), 10.1), math.radians(98), math.radians(171)), False)
sketch2.addGeometry(Part.Circle(V(93.6, 18.1, 0), V(0, 0, 1), 2), False)
sketch2.addGeometry(Part.Circle(V(98.7, 33.1, 0), V(0, 0, 1), 5), False)
sketch2.addGeometry(Part.Circle(V(107, 4.2, 0), V(0, 0, 1), 9.5), False)
sketch2.addConstraint(Sketcher.Constraint("Coincident", 0, 2, 1, 1))
sketch2.addConstraint(Sketcher.Constraint("Coincident", 1, 2, 2, 1))
sketch2.addConstraint(Sketcher.Constraint("Coincident", 2, 2, 3, 1))
sketch2.addConstraint(Sketcher.Constraint("Coincident", 3, 2, 0, 1))
sketch2.addConstraint(Sketcher.Constraint("Coincident", 4, 2, 5, 1))
sketch2.addConstraint(Sketcher.Constraint("Coincident", 5, 2, 6, 1))
sketch2.addConstraint(Sketcher.Constraint("Coincident", 6, 2, 7, 1))
sketch2.addConstraint(Sketcher.Constraint("Coincident", 7, 2, 4, 1))
sketch2.addConstraint(Sketcher.Constraint("Coincident", 11, 2, 12, 2))
sketch2.addConstraint(Sketcher.Constraint("Coincident", 12, 1, 13, 1))
sketch2.addConstraint(Sketcher.Constraint("Coincident", 13, 2, 14, 1))
sketch2.addConstraint(Sketcher.Constraint("Coincident", 14, 2, 15, 1))
sketch2.addConstraint(Sketcher.Constraint("Coincident", 15, 2, 16, 2))
sketch2.addConstraint(Sketcher.Constraint("Coincident", 16, 1, 11, 1))
sketch2.addConstraint(Sketcher.Constraint("Coincident", 20, 2, 21, 2))
sketch2.addConstraint(Sketcher.Constraint("Coincident", 21, 1, 22, 1))
sketch2.addConstraint(Sketcher.Constraint("Coincident", 22, 2, 23, 1))
sketch2.addConstraint(Sketcher.Constraint("Coincident", 23, 2, 24, 1))
sketch2.addConstraint(Sketcher.Constraint("Coincident", 24, 2, 25, 2))
sketch2.addConstraint(Sketcher.Constraint("Tangent", 25, 1, 26, 2))
sketch2.addConstraint(Sketcher.Constraint("Coincident", 26, 1, 27, 1))
sketch2.addConstraint(Sketcher.Constraint("Coincident", 27, 2, 28, 1))
sketch2.addConstraint(Sketcher.Constraint("Coincident", 28, 2, 29, 2))
sketch2.addConstraint(Sketcher.Constraint("Coincident", 29, 1, 20, 1))
sketch2.addConstraint(Sketcher.Constraint("Coincident", 30, 1, 31, 1))
sketch2.addConstraint(Sketcher.Constraint("Coincident", 31, 2, 32, 1))
sketch2.addConstraint(Sketcher.Constraint("Coincident", 32, 2, 33, 1))
sketch2.addConstraint(Sketcher.Constraint("Coincident", 33, 2, 34, 2))
sketch2.addConstraint(Sketcher.Constraint("Tangent", 34, 1, 35, 2))
sketch2.addConstraint(Sketcher.Constraint("Coincident", 35, 1, 36, 1))
sketch2.addConstraint(Sketcher.Constraint("Coincident", 36, 2, 37, 1))
sketch2.addConstraint(Sketcher.Constraint("Coincident", 37, 2, 38, 2))
sketch2.addConstraint(Sketcher.Constraint("Coincident", 38, 1, 39, 1))
sketch2.addConstraint(Sketcher.Constraint("Coincident", 39, 2, 30, 2))
sketch2.addConstraint(Sketcher.Constraint("Coincident", 43, 2, 44, 2))
sketch2.addConstraint(Sketcher.Constraint("Coincident", 44, 1, 45, 1))
sketch2.addConstraint(Sketcher.Constraint("Coincident", 45, 2, 46, 1))
sketch2.addConstraint(Sketcher.Constraint("Coincident", 46, 2, 47, 1))
sketch2.addConstraint(Sketcher.Constraint("Coincident", 47, 2, 48, 2))
sketch2.addConstraint(Sketcher.Constraint("Coincident", 48, 1, 43, 1))
sketch2.addConstraint(Sketcher.Constraint("Vertical", 0))
sketch2.addConstraint(Sketcher.Constraint("Horizontal", 1))
sketch2.addConstraint(Sketcher.Constraint("Vertical", 2))
sketch2.addConstraint(Sketcher.Constraint("Horizontal", 3))
sketch2.addConstraint(Sketcher.Constraint("Vertical", 4))
sketch2.addConstraint(Sketcher.Constraint("Horizontal", 5))
sketch2.addConstraint(Sketcher.Constraint("Vertical", 6))
sketch2.addConstraint(Sketcher.Constraint("Horizontal", 7))
sketch2.addConstraint(Sketcher.Constraint("Vertical", 11))
sketch2.addConstraint(Sketcher.Constraint("Vertical", 14))
sketch2.addConstraint(Sketcher.Constraint("Vertical", 20))
sketch2.addConstraint(Sketcher.Constraint("Vertical", 23))
sketch2.addConstraint(Sketcher.Constraint("Vertical", 27))
sketch2.addConstraint(Sketcher.Constraint("Vertical", 32))
sketch2.addConstraint(Sketcher.Constraint("Vertical", 36))
sketch2.addConstraint(Sketcher.Constraint("Vertical", 39))
sketch2.addConstraint(Sketcher.Constraint("Vertical", 43))
sketch2.addConstraint(Sketcher.Constraint("Vertical", 46))
sketch2.addConstraint(Sketcher.Constraint("Equal", 9, 10))
sketch2.addConstraint(Sketcher.Constraint("Equal", 12, 16))
sketch2.addConstraint(Sketcher.Constraint("Equal", 10, 17))
sketch2.addConstraint(Sketcher.Constraint("Equal", 8, 18))
sketch2.addConstraint(Sketcher.Constraint("Equal", 16, 21))
sketch2.addConstraint(Sketcher.Constraint("Equal", 25, 26))
sketch2.addConstraint(Sketcher.Constraint("Equal", 21, 29))
sketch2.addConstraint(Sketcher.Constraint("Equal", 29, 30))
sketch2.addConstraint(Sketcher.Constraint("Equal", 26, 34))
sketch2.addConstraint(Sketcher.Constraint("Equal", 34, 35))
sketch2.addConstraint(Sketcher.Constraint("Equal", 30, 38))
sketch2.addConstraint(Sketcher.Constraint("Equal", 18, 40))
sketch2.addConstraint(Sketcher.Constraint("Equal", 17, 41))
sketch2.addConstraint(Sketcher.Constraint("Equal", 41, 42))
sketch2.addConstraint(Sketcher.Constraint("Equal", 38, 44))
sketch2.addConstraint(Sketcher.Constraint("Equal", 44, 48))
sketch2.addConstraint(Sketcher.Constraint("Equal", 42, 49))
sketch2.addConstraint(Sketcher.Constraint("Equal", 40, 50))
sketch2.addConstraint(Sketcher.Constraint("Equal", 19, 51))
sketch2.addConstraint(Sketcher.Constraint("Parallel", 22, 31))
sketch2.addConstraint(Sketcher.Constraint("Parallel", 24, 33))
sketch2.addConstraint(Sketcher.Constraint("Parallel", 28, 37))
sketch2.addConstraint(Sketcher.Constraint("Parallel", 13, 45))
sketch2.addConstraint(Sketcher.Constraint("Parallel", 15, 47))
sketch2.addConstraint(Sketcher.Constraint("Horizontal", 21, 3, 30, 3))
sketch2.addConstraint(Sketcher.Constraint("Horizontal", 26, 3, 34, 3))
sketch2.addConstraint(Sketcher.Constraint("Horizontal", 29, 3, 38, 3))
sketch2.addConstraint(Sketcher.Constraint("Horizontal", 8, 3, 40, 3))
sketch2.addConstraint(Sketcher.Constraint("Horizontal", 9, 3, 41, 3))
sketch2.addConstraint(Sketcher.Constraint("Horizontal", 10, 3, 42, 3))
sketch2.addConstraint(Sketcher.Constraint("Horizontal", 12, 3, 44, 3))
sketch2.addConstraint(Sketcher.Constraint("Horizontal", 16, 3, 48, 3))
sketch2.addConstraint(Sketcher.Constraint("Horizontal", 17, 3, 49, 3))
sketch2.addConstraint(Sketcher.Constraint("Horizontal", 18, 3, 50, 3))
sketch2.addConstraint(Sketcher.Constraint("Horizontal", 19, 3, 51, 3))
sketch2.addConstraint(Sketcher.Constraint("Horizontal", 35, 3, 25, 1))
sketch2.addConstraint(Sketcher.Constraint("Horizontal", 21, 1, 30, 1))
sketch2.addConstraint(Sketcher.Constraint("Horizontal", 22, 2, 31, 2))
sketch2.addConstraint(Sketcher.Constraint("Horizontal", 23, 2, 32, 2))
sketch2.addConstraint(Sketcher.Constraint("Horizontal", 24, 2, 33, 2))
sketch2.addConstraint(Sketcher.Constraint("Horizontal", 25, 1, 34, 1))
sketch2.addConstraint(Sketcher.Constraint("Horizontal", 26, 1, 35, 1))
sketch2.addConstraint(Sketcher.Constraint("Horizontal", 27, 2, 36, 2))
sketch2.addConstraint(Sketcher.Constraint("Horizontal", 28, 2, 37, 2))
sketch2.addConstraint(Sketcher.Constraint("Horizontal", 29, 1, 38, 1))
sketch2.addConstraint(Sketcher.Constraint("Horizontal", 11, 2, 43, 2))
sketch2.addConstraint(Sketcher.Constraint("Horizontal", 12, 1, 44, 1))
sketch2.addConstraint(Sketcher.Constraint("Horizontal", 13, 2, 45, 2))
sketch2.addConstraint(Sketcher.Constraint("Horizontal", 14, 2, 46, 2))
sketch2.addConstraint(Sketcher.Constraint("Horizontal", 15, 2, 47, 2))
sketch2.addConstraint(Sketcher.Constraint("Vertical", 9, 3, 10, 3))
sketch2.addConstraint(Sketcher.Constraint("Vertical", 12, 3, 16, 3))
sketch2.addConstraint(Sketcher.Constraint("Vertical", 10, 3, 17, 3))
sketch2.addConstraint(Sketcher.Constraint("Vertical", 8, 3, 18, 3))
sketch2.addConstraint(Sketcher.Constraint("Vertical", 16, 3, 21, 3))
sketch2.addConstraint(Sketcher.Constraint("Vertical", 21, 3, 29, 3))
sketch2.addConstraint(Sketcher.Constraint("Vertical", 41, 3, 42, 3))
sketch2.addConstraint(Sketcher.Constraint("Vertical", 38, 3, 44, 3))
sketch2.addConstraint(Sketcher.Constraint("Vertical", 42, 3, 49, 3))
sketch2.addConstraint(Sketcher.Constraint("Vertical", 40, 3, 50, 3))
sketch2.addConstraint(Sketcher.Constraint("Vertical", 12, 1, 15, 2))
sketch2.addConstraint(Sketcher.Constraint("Vertical", 16, 1, 20, 2))
sketch2.addConstraint(Sketcher.Constraint("Vertical", 15, 2, 21, 1))
sketch2.addConstraint(Sketcher.Constraint("Vertical", 14, 2, 22, 2))
sketch2.addConstraint(Sketcher.Constraint("Vertical", 23, 2, 26, 1))
sketch2.addConstraint(Sketcher.Constraint("Vertical", 21, 1, 28, 2))
sketch2.addConstraint(Sketcher.Constraint("Equal", 11, 20))
sketch2.addConstraint(Sketcher.Constraint("Equal", 15, 22))
sketch2.addConstraint(Sketcher.Constraint("Equal", 13, 28))
sketch2.addConstraint(Sketcher.Constraint("Diameter", 9, Q("4 mm")))
sketch2.addConstraint(Sketcher.Constraint("Diameter", 19, Q("19 mm")))
sketch2.addConstraint(Sketcher.Constraint("Radius", 25, Q("3 mm")))
sketch2.addConstraint(Sketcher.Constraint("Diameter", 8, Q("10.1 mm")))
sketch2.addConstraint(Sketcher.Constraint("DistanceY", 0, 2, 0, 1, Q("106 mm")))
sketch2.addConstraint(Sketcher.Constraint("DistanceY", 4, 2, 4, 1, Q("40 mm")))
sketch2.addConstraint(Sketcher.Constraint("DistanceY", 11, 1, 11, 2, Q("10 mm")))
sketch2.addConstraint(Sketcher.Constraint("DistanceY", 14, 2, 14, 1, Q("26 mm")))
sketch2.addConstraint(Sketcher.Constraint("DistanceX", 5, 2, 5, 1, Q("9.3 mm")))
sketch2.addConstraint(Sketcher.Constraint("Radius", 12, Q("10.089419 mm")))
sketch2.addConstraint(Sketcher.Constraint("DistanceX", -1, 1, 12, 3, Q("65.667999 mm")))
sketch2.addConstraint(Sketcher.Constraint("DistanceY", 27, 2, 27, 1, Q("0.62062 mm")))
sketch2.addConstraint(Sketcher.Constraint("DistanceY", 9, 3, -1, 1, Q("18.523199 mm")))
sketch2.addConstraint(Sketcher.Constraint("DistanceY", -1, 1, 21, 3, Q("48.121499 mm")))
sketch2.addConstraint(Sketcher.Constraint("Distance", 15, Q("19.00219 mm")))
sketch2.addConstraint(Sketcher.Constraint("DistanceX", 1, 1, 1, 2, Q("83.032923 mm")))
sketch2.addConstraint(Sketcher.Constraint("DistanceY", 23, 2, 23, 1, Q("15.765422 mm")))
sketch2.addConstraint(Sketcher.Constraint("DistanceX", -1, 1, 8, 3, Q("56.62033 mm")))
sketch2.addConstraint(Sketcher.Constraint("DistanceY", 10, 3, -1, 1, Q("0.209512 mm")))
sketch2.addConstraint(Sketcher.Constraint("DistanceY", -1, 1, 18, 3, Q("33.13706 mm")))
sketch2.addConstraint(Sketcher.Constraint("DistanceX", -1, 1, 19, 3, Q("64.966319 mm")))
sketch2.addConstraint(Sketcher.Constraint("DistanceY", -1, 1, 19, 3, Q("4.190488 mm")))
sketch2.addConstraint(Sketcher.Constraint("DistanceX", -1, 1, 25, 3, Q("74.616319 mm")))
sketch2.addConstraint(Sketcher.Constraint("DistanceY", -1, 1, 25, 3, Q("23.790488 mm")))
sketch2.addConstraint(Sketcher.Constraint("DistanceX", -1, 1, 30, 3, Q("107.700922 mm")))
sketch2.addConstraint(Sketcher.Constraint("DistanceX", -1, 1, 41, 3, Q("93.59406 mm")))
sketch2.addConstraint(Sketcher.Constraint("DistanceX", -1, 1, 0, 2, Q("41.716319 mm")))
sketch2.addConstraint(Sketcher.Constraint("DistanceY", 0, 2, -1, 1, Q("54.209512 mm")))
sketch2.addConstraint(Sketcher.Constraint("DistanceX", -1, 1, 4, 2, Q("87.882781 mm")))
sketch2.addConstraint(Sketcher.Constraint("DistanceY", 4, 2, -1, 1, Q("15.209512 mm")))
sketch2.addConstraint(Sketcher.Constraint("DistanceX", -1, 1, 11, 2, Q("64.216319 mm")))
sketch2.addConstraint(Sketcher.Constraint("DistanceX", -1, 1, 12, 1, Q("55.716319 mm")))
sketch2.addConstraint(Sketcher.Constraint("DistanceY", 13, 2, -1, 1, Q("20.590559 mm")))
sketch2.addConstraint(Sketcher.Constraint("DistanceX", -1, 1, 24, 2, Q("76.578548 mm")))
sketch2.addConstraint(Sketcher.Constraint("DistanceY", 8, 3, -1, 1, Q("33.556084 mm")))
sketch2.addConstraint(Sketcher.Constraint("DistanceX", -1, 1, 9, 3, Q("51.561137 mm")))
sketch2.addConstraint(Sketcher.Constraint("DistanceY", -1, 1, 17, 3, Q("18.104175 mm")))
sketch2.addConstraint(Sketcher.Constraint("DistanceX", -1, 1, 40, 3, Q("98.653253 mm")))
sketch2.addConstraint(Sketcher.Constraint("DistanceX", -1, 1, 51, 3, Q("106.999242 mm")))
sketch2.setExpression("Constraints[127]", "Params.sketch2_diameter")
sketch2.setExpression("Constraints[128]", "Params.sketch2_diameter2")
sketch2.setExpression("Constraints[129]", "Params.sketch2_radius")
sketch2.setExpression("Constraints[130]", "Params.sketch2_diameter3")
sketch2.setExpression("Constraints[131]", "Params.sketch2_height")
pad2 = body2.newObject("PartDesign::Pad", "Pad001")
pad2.Profile = sketch2
pad2.setExpression("Length", "Params.pad2_length")
doc.recompute()

fillet2 = body2.newObject("PartDesign::Fillet", "Fillet001")
fillet2.Base = (pad2, edges_at(pad2, [
    (41.716, 51.79, 0.75),
    (124.749, 51.79, 0.75),
    (41.716, -54.21, 0.75),
    (124.749, -54.21, 0.75),
]))
fillet2.setExpression("Radius", "Params.fillet2_radius")

doc.recompute()
